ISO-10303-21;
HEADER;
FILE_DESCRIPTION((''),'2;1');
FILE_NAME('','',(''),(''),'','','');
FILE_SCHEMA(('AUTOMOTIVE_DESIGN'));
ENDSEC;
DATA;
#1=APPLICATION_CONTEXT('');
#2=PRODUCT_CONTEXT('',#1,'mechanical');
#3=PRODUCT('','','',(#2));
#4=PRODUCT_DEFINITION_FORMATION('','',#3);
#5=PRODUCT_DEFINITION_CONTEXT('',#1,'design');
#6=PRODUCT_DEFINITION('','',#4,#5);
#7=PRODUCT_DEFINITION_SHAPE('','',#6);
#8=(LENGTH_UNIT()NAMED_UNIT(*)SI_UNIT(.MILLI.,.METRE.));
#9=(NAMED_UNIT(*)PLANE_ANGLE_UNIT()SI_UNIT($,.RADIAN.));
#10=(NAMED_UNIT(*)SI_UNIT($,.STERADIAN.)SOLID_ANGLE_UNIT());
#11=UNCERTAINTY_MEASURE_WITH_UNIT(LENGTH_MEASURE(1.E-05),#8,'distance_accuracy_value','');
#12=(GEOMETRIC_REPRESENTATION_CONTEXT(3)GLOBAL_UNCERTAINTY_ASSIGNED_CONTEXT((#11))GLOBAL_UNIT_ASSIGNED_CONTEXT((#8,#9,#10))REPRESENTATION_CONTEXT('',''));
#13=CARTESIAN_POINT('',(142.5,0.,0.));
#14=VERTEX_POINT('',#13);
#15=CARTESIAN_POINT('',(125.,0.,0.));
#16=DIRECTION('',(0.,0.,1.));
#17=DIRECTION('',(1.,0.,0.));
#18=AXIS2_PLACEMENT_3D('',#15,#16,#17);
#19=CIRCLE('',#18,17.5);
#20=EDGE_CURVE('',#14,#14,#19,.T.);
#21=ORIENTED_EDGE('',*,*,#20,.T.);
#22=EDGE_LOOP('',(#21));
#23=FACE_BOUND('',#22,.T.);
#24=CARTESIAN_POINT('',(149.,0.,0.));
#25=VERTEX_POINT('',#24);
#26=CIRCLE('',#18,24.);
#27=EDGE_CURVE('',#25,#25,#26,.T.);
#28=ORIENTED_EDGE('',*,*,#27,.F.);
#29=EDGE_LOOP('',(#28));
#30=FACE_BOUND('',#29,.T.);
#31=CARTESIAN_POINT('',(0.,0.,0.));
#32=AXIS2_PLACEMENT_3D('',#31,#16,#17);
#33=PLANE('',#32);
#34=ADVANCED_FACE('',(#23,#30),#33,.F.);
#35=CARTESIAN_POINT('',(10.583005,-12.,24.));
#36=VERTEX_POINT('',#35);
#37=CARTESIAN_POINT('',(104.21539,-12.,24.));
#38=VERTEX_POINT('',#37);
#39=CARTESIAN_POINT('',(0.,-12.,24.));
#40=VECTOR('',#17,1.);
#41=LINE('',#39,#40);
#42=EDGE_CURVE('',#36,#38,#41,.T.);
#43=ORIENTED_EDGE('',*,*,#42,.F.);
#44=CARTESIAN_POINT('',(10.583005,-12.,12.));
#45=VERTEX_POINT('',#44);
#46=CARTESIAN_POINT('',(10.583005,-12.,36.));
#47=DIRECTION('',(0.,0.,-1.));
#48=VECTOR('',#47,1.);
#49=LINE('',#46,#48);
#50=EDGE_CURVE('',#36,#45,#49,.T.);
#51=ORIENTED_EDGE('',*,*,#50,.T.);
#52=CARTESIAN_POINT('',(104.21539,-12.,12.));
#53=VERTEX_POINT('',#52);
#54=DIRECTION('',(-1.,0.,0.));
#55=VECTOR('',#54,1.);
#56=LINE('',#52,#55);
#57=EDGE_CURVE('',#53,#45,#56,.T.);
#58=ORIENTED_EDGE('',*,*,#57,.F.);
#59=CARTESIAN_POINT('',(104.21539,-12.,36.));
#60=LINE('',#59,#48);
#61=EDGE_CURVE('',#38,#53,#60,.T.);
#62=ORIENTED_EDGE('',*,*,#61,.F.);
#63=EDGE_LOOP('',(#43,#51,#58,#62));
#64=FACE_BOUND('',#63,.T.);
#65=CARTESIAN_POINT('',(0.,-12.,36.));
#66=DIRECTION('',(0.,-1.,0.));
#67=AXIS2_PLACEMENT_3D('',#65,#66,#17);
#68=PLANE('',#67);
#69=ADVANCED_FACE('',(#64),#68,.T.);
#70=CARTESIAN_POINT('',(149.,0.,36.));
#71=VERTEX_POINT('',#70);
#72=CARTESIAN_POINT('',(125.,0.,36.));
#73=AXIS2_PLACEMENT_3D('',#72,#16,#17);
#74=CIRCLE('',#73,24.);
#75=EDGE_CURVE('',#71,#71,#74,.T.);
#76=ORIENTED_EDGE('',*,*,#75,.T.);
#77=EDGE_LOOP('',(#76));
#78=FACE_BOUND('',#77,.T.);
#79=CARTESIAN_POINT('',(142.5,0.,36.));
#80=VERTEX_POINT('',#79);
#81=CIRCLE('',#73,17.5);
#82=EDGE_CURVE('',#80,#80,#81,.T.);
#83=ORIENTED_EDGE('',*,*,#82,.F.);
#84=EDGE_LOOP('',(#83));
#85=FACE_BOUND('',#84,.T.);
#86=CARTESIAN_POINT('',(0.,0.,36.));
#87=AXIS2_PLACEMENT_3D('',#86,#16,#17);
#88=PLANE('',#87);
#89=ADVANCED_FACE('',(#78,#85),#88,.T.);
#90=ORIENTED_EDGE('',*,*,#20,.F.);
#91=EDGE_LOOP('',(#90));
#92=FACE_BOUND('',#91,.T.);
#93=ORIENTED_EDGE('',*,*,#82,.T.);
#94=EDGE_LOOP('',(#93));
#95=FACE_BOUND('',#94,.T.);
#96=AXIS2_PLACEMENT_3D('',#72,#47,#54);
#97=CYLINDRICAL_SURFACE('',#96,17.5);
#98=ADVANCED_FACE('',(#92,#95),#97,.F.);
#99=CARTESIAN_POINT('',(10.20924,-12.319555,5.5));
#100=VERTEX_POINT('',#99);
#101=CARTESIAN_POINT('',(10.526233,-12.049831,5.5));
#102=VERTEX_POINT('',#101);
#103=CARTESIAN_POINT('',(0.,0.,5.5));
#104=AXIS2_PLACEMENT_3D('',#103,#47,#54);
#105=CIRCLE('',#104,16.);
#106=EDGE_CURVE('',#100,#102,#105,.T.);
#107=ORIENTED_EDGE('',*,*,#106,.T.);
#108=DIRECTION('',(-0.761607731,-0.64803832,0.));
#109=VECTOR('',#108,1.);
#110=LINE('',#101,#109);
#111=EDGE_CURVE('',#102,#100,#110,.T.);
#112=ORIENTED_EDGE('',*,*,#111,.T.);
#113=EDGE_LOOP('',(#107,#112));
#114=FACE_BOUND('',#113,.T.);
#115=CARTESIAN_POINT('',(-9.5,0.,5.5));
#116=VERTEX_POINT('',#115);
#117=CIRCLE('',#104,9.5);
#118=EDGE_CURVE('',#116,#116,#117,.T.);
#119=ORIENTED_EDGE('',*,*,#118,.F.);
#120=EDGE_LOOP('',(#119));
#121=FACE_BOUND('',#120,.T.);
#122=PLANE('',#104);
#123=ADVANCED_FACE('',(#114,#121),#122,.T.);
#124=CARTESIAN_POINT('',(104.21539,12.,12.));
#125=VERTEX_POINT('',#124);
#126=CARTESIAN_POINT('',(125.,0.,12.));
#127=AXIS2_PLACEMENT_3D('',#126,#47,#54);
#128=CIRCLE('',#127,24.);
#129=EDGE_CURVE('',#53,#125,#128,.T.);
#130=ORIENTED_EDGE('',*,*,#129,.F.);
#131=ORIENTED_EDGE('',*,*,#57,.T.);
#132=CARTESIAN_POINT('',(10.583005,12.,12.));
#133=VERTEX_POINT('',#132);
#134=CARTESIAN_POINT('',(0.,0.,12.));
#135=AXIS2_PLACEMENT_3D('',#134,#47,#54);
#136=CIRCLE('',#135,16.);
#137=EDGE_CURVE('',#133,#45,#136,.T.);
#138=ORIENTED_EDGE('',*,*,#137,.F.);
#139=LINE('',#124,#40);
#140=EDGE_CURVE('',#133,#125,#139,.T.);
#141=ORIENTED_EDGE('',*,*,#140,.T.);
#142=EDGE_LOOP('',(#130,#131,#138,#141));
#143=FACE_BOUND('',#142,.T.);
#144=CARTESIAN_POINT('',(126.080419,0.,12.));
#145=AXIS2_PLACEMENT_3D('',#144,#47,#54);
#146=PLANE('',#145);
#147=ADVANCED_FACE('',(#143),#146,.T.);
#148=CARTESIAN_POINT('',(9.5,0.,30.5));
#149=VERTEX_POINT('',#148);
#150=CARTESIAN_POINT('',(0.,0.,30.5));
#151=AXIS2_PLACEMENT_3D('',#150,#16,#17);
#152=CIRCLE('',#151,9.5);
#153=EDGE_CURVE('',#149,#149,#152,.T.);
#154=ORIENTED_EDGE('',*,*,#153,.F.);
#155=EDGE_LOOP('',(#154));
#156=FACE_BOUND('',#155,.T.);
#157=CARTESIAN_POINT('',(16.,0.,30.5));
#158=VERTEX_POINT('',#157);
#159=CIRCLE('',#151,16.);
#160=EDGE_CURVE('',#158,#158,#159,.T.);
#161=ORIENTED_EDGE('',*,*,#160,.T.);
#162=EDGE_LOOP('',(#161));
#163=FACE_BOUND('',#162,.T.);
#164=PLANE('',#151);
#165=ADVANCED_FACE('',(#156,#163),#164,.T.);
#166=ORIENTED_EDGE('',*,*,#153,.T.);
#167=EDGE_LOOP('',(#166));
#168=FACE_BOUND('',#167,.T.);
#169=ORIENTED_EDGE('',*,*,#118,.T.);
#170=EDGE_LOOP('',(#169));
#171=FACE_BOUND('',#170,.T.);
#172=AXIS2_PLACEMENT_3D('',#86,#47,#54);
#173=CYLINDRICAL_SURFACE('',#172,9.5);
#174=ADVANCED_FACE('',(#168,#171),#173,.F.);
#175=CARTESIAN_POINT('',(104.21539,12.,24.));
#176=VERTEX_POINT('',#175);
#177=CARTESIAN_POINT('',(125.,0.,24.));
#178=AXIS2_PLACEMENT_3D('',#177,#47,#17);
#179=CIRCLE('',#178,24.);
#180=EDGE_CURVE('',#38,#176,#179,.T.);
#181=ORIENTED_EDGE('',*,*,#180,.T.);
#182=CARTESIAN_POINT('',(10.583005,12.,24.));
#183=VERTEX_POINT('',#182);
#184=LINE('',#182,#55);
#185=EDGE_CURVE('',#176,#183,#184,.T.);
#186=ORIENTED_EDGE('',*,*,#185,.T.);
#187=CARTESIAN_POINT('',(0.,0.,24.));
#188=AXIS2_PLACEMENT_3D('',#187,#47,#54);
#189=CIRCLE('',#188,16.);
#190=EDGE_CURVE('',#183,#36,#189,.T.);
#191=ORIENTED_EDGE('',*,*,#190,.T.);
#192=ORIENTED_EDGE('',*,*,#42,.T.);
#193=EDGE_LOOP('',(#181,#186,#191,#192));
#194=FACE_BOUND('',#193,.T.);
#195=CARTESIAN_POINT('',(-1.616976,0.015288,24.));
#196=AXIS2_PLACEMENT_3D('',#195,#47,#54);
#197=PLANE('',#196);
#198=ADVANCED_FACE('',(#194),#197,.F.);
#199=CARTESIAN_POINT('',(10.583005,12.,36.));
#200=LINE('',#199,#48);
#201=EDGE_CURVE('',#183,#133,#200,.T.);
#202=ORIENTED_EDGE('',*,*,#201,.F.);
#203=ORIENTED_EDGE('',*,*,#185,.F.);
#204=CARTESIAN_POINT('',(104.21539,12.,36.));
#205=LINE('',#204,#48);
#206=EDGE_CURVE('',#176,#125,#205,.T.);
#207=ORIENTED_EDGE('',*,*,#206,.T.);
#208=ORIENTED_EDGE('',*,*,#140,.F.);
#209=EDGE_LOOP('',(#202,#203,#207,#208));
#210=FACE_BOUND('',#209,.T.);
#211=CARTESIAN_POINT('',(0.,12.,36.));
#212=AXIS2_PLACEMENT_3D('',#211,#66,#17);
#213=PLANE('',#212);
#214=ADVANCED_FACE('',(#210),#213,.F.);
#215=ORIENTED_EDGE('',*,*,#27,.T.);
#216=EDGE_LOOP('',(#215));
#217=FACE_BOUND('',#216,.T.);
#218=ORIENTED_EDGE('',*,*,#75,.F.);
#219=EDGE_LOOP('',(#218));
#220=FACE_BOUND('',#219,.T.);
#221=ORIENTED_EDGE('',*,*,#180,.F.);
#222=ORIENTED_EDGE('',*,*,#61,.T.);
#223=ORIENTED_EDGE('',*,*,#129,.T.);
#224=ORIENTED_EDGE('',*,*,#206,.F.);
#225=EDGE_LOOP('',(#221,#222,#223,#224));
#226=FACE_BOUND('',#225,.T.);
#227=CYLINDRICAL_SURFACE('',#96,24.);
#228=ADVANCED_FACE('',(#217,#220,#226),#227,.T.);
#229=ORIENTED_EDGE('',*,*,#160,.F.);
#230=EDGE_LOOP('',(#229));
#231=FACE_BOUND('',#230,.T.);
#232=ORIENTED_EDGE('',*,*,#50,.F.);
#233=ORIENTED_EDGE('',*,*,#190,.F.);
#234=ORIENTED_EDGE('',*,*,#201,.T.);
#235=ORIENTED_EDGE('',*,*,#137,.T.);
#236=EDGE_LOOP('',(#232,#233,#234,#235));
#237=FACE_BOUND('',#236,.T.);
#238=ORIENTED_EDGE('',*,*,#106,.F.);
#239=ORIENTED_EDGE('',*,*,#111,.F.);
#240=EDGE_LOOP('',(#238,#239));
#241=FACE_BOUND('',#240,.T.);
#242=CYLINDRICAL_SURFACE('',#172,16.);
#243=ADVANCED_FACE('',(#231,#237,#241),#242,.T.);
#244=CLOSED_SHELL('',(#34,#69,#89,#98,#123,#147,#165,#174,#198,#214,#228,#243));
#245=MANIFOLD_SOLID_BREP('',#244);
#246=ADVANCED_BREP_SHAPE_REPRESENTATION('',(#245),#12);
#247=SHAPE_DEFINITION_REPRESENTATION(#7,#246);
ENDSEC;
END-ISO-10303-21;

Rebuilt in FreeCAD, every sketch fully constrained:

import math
import FreeCAD as App
import Part
import Sketcher
from FreeCAD import Vector

doc = App.newDocument("Part")
body = doc.addObject("PartDesign::Body", "Body")

sketch1 = body.newObject("Sketcher::SketchObject", "Sketch")
sketch1.AttachmentSupport = (doc.getObject("XY_Plane"), [""])
sketch1.MapMode = "FlatFace"
sketch1.addGeometry(Part.ArcOfCircle(Part.Circle(Vector(0, 0, 0), Vector(0, 0, 1), 16), math.radians(49), math.radians(310)), False)
sketch1.addGeometry(Part.LineSegment(Vector(10.21, -12.32, 0), Vector(10.53, -12.05, 0)), False)
sketch1.addGeometry(Part.ArcOfCircle(Part.Circle(Vector(0, 0, 0), Vector(0, 0, 1), 16), math.radians(-48.86), math.radians(-48.59)), False)
sketch1.addGeometry(Part.LineSegment(Vector(10.58, -12, 0), Vector(104.22, -12, 0)), False)
sketch1.addGeometry(Part.ArcOfCircle(Part.Circle(Vector(125, 0, 0), Vector(0, 0, 1), 24), math.radians(-150), math.radians(150)), False)
sketch1.addGeometry(Part.LineSegment(Vector(104.22, 12, 0), Vector(10.58, 12, 0)), False)
sketch1.addGeometry(Part.Circle(Vector(0, 0, 0), Vector(0, 0, 1), 9.5), False)
sketch1.addGeometry(Part.Circle(Vector(125, 0, 0), Vector(0, 0, 1), 17.5), False)
sketch1.addConstraint(Sketcher.Constraint("Coincident", 0, 2, 1, 1))
sketch1.addConstraint(Sketcher.Constraint("Coincident", 1, 2, 2, 1))
sketch1.addConstraint(Sketcher.Constraint("Coincident", 2, 2, 3, 1))
sketch1.addConstraint(Sketcher.Constraint("Coincident", 3, 2, 4, 1))
sketch1.addConstraint(Sketcher.Constraint("Coincident", 4, 2, 5, 1))
sketch1.addConstraint(Sketcher.Constraint("Coincident", 5, 2, 0, 1))
sketch1.addConstraint(Sketcher.Constraint("Horizontal", 3))
sketch1.addConstraint(Sketcher.Constraint("Horizontal", 5))
sketch1.addConstraint(Sketcher.Constraint("Coincident", 0, 3, -1, 1))
sketch1.addConstraint(Sketcher.Constraint("Coincident", 6, 3, -1, 1))
sketch1.addConstraint(Sketcher.Constraint("Coincident", 7, 3, 4, 3))
sketch1.addConstraint(Sketcher.Constraint("Symmetric", 3, 2, 4, 2, -1))
sketch1.addConstraint(Sketcher.Constraint("Vertical", 2, 2, 5, 2))
sketch1.addConstraint(Sketcher.Constraint("Diameter", 6, 19.0))
sketch1.addConstraint(Sketcher.Constraint("Diameter", 7, 35.0))
sketch1.addConstraint(Sketcher.Constraint("Radius", 0, 16.0))
sketch1.addConstraint(Sketcher.Constraint("Radius", 4, 24.0))
sketch1.addConstraint(Sketcher.Constraint("DistanceX", -1, 1, 4, 3, 125.0))
sketch1.addConstraint(Sketcher.Constraint("DistanceY", 2, 2, -1, 1, 12.0))
sketch1.addConstraint(Sketcher.Constraint("Radius", 2, 15.999968))
sketch1.addConstraint(Sketcher.Constraint("DistanceX", -1, 1, 0, 2, 10.20924))
sketch1.addConstraint(Sketcher.Constraint("DistanceY", 1, 2, -1, 1, 12.049831))
sketch1.addConstraint(Sketcher.Constraint("DistanceX", 2, 3, 4, 3, 124.999979))
pad1 = body.newObject("PartDesign::Pad", "Pad")
pad1.Profile = sketch1
pad1.Length = 36

sketch2 = body.newObject("Sketcher::SketchObject", "Sketch001")
sketch2.AttachmentSupport = (doc.getObject("XY_Plane"), [""])
sketch2.MapMode = "FlatFace"
sketch2.addGeometry(Part.LineSegment(Vector(11, 12, 0), Vector(104, 12, 0)), False)
sketch2.addGeometry(Part.ArcOfCircle(Part.Circle(Vector(126, 0, 0), Vector(0, 0, 1), 25), math.radians(151), math.radians(209)), False)
sketch2.addGeometry(Part.LineSegment(Vector(104, -12, 0), Vector(11, -12, 0)), False)
sketch2.addGeometry(Part.ArcOfCircle(Part.Circle(Vector(-1, 0, 0), Vector(0, 0, 1), 17), math.radians(-45), math.radians(45)), False)
sketch2.addConstraint(Sketcher.Constraint("Coincident", 0, 2, 1, 1))
sketch2.addConstraint(Sketcher.Constraint("Coincident", 1, 2, 2, 1))
sketch2.addConstraint(Sketcher.Constraint("Coincident", 2, 2, 3, 1))
sketch2.addConstraint(Sketcher.Constraint("Coincident", 3, 2, 0, 1))
sketch2.addConstraint(Sketcher.Constraint("Horizontal", 0))
sketch2.addConstraint(Sketcher.Constraint("Horizontal", 2))
sketch2.addConstraint(Sketcher.Constraint("Symmetric", 0, 2, 1, 2, -1))
sketch2.addConstraint(Sketcher.Constraint("PointOnObject", 3, 3, -1))
sketch2.addConstraint(Sketcher.Constraint("DistanceY", -1, 1, 0, 2, 12.0))
sketch2.addConstraint(Sketcher.Constraint("DistanceX", 3, 3, 2, 2, 12.0))
sketch2.addConstraint(Sketcher.Constraint("Radius", 1, 24.941521))
sketch2.addConstraint(Sketcher.Constraint("DistanceX", 0, 1, 0, 2, 93.632385))
sketch2.addConstraint(Sketcher.Constraint("DistanceX", -1, 1, 1, 3, 126.080419))
pocket1 = body.newObject("PartDesign::Pocket", "Pocket")
pocket1.Profile = sketch2
pocket1.Length = 12
pocket1.Reversed = True

sketch3 = body.newObject("Sketcher::SketchObject", "Sketch002")
sketch3.AttachmentSupport = (doc.getObject("XY_Plane"), [""])
sketch3.MapMode = "FlatFace"
sketch3.AttachmentOffset = App.Placement(Vector(0, 0, 36), App.Rotation())
sketch3.addGeometry(Part.LineSegment(Vector(104, 12, 0), Vector(11, 12, 0)), False)
sketch3.addGeometry(Part.ArcOfCircle(Part.Circle(Vector(-2, 0, 0), Vector(0, 0, 1), 17), math.radians(-46), math.radians(44)), False)
sketch3.addGeometry(Part.LineSegment(Vector(10, -12, 0), Vector(104, -12, 0)), False)
sketch3.addGeometry(Part.ArcOfCircle(Part.Circle(Vector(125, 0, 0), Vector(0, 0, 1), 24), math.radians(150), math.radians(210)), False)
sketch3.addConstraint(Sketcher.Constraint("Coincident", 0, 2, 1, 2))
sketch3.addConstraint(Sketcher.Constraint("Coincident", 1, 1, 2, 1))
sketch3.addConstraint(Sketcher.Constraint("Coincident", 2, 2, 3, 2))
sketch3.addConstraint(Sketcher.Constraint("Coincident", 3, 1, 0, 1))
sketch3.addConstraint(Sketcher.Constraint("Horizontal", 0))
sketch3.addConstraint(Sketcher.Constraint("Symmetric", 2, 2, 3, 1, -1))
sketch3.addConstraint(Sketcher.Constraint("Radius", 3, 24.0))
sketch3.addConstraint(Sketcher.Constraint("DistanceX", -1, 1, 3, 3, 125.0))
sketch3.addConstraint(Sketcher.Constraint("DistanceY", -1, 1, 0, 2, 12.0))
sketch3.addConstraint(Sketcher.Constraint("Radius", 1, 17.101838))
sketch3.addConstraint(Sketcher.Constraint("DistanceX", 0, 2, 0, 1, 93.632385))
sketch3.addConstraint(Sketcher.Constraint("DistanceY", -1, 1, 1, 3, 0.015288))
sketch3.addConstraint(Sketcher.Constraint("DistanceX", 1, 3, 1, 1, 11.984712))
pocket2 = body.newObject("PartDesign::Pocket", "Pocket001")
pocket2.Profile = sketch3
pocket2.Length = 12

sketch4 = body.newObject("Sketcher::SketchObject", "Sketch003")
sketch4.AttachmentSupport = (doc.getObject("XY_Plane"), [""])
sketch4.MapMode = "FlatFace"
sketch4.AttachmentOffset = App.Placement(Vector(0, 0, 36), App.Rotation())
sketch4.addGeometry(Part.Circle(Vector(0, 0, 0), Vector(0, 0, 1), 16), False)
sketch4.addGeometry(Part.Circle(Vector(0, 0, 0), Vector(0, 0, 1), 10), False)
sketch4.addConstraint(Sketcher.Constraint("Coincident", 0, 3, -1, 1))
sketch4.addConstraint(Sketcher.Constraint("Coincident", 1, 3, -1, 1))
sketch4.addConstraint(Sketcher.Constraint("Diameter", 0, 32.0))
sketch4.addConstraint(Sketcher.Constraint("Diameter", 1, 19.0))
pocket3 = body.newObject("PartDesign::Pocket", "Pocket002")
pocket3.Profile = sketch4
pocket3.Length = 5.5

sketch5 = body.newObject("Sketcher::SketchObject", "Sketch004")
sketch5.AttachmentSupport = (doc.getObject("XY_Plane"), [""])
sketch5.MapMode = "FlatFace"
sketch5.addGeometry(Part.Circle(Vector(0, 0, 0), Vector(0, 0, 1), 16), False)
sketch5.addGeometry(Part.Circle(Vector(0, 0, 0), Vector(0, 0, 1), 10), False)
sketch5.addConstraint(Sketcher.Constraint("Coincident", 0, 3, -1, 1))
sketch5.addConstraint(Sketcher.Constraint("Coincident", 1, 3, -1, 1))
sketch5.addConstraint(Sketcher.Constraint("Diameter", 0, 32.0))
sketch5.addConstraint(Sketcher.Constraint("Diameter", 1, 19.0))
pocket4 = body.newObject("PartDesign::Pocket", "Pocket003")
pocket4.Profile = sketch5
pocket4.Length = 5.5
pocket4.Reversed = True

sketch6 = body.newObject("Sketcher::SketchObject", "Sketch005")
sketch6.AttachmentSupport = (doc.getObject("XY_Plane"), [""])
sketch6.MapMode = "FlatFace"
sketch6.addGeometry(Part.Circle(Vector(125, 0, 0), Vector(0, 0, 1), 24), False)
sketch6.addGeometry(Part.Circle(Vector(125, 0, 0), Vector(0, 0, 1), 18), False)
sketch6.addConstraint(Sketcher.Constraint("Coincident", 1, 3, 0, 3))
sketch6.addConstraint(Sketcher.Constraint("PointOnObject", 0, 3, -1))
sketch6.addConstraint(Sketcher.Constraint("Diameter", 0, 48.0))
sketch6.addConstraint(Sketcher.Constraint("Diameter", 1, 35.0))
sketch6.addConstraint(Sketcher.Constraint("DistanceX", -1, 1, 0, 3, 125.0))
pad2 = body.newObject("PartDesign::Pad", "Pad001")
pad2.Profile = sketch6
pad2.Length = 36

sketch7 = body.newObject("Sketcher::SketchObject", "Sketch006")
sketch7.AttachmentSupport = (doc.getObject("XY_Plane"), [""])
sketch7.MapMode = "FlatFace"
sketch7.AttachmentOffset = App.Placement(Vector(0, 0, 5.5), App.Rotation())
sketch7.addGeometry(Part.Circle(Vector(0, 0, 0), Vector(0, 0, 1), 16), False)
sketch7.addGeometry(Part.Circle(Vector(0, 0, 0), Vector(0, 0, 1), 10), False)
sketch7.addConstraint(Sketcher.Constraint("Coincident", 0, 3, -1, 1))
sketch7.addConstraint(Sketcher.Constraint("Coincident", 1, 3, -1, 1))
sketch7.addConstraint(Sketcher.Constraint("Diameter", 0, 32.0))
sketch7.addConstraint(Sketcher.Constraint("Diameter", 1, 19.0))
pad3 = body.newObject("PartDesign::Pad", "Pad002")
pad3.Profile = sketch7
pad3.Length = 25

doc.recompute()
